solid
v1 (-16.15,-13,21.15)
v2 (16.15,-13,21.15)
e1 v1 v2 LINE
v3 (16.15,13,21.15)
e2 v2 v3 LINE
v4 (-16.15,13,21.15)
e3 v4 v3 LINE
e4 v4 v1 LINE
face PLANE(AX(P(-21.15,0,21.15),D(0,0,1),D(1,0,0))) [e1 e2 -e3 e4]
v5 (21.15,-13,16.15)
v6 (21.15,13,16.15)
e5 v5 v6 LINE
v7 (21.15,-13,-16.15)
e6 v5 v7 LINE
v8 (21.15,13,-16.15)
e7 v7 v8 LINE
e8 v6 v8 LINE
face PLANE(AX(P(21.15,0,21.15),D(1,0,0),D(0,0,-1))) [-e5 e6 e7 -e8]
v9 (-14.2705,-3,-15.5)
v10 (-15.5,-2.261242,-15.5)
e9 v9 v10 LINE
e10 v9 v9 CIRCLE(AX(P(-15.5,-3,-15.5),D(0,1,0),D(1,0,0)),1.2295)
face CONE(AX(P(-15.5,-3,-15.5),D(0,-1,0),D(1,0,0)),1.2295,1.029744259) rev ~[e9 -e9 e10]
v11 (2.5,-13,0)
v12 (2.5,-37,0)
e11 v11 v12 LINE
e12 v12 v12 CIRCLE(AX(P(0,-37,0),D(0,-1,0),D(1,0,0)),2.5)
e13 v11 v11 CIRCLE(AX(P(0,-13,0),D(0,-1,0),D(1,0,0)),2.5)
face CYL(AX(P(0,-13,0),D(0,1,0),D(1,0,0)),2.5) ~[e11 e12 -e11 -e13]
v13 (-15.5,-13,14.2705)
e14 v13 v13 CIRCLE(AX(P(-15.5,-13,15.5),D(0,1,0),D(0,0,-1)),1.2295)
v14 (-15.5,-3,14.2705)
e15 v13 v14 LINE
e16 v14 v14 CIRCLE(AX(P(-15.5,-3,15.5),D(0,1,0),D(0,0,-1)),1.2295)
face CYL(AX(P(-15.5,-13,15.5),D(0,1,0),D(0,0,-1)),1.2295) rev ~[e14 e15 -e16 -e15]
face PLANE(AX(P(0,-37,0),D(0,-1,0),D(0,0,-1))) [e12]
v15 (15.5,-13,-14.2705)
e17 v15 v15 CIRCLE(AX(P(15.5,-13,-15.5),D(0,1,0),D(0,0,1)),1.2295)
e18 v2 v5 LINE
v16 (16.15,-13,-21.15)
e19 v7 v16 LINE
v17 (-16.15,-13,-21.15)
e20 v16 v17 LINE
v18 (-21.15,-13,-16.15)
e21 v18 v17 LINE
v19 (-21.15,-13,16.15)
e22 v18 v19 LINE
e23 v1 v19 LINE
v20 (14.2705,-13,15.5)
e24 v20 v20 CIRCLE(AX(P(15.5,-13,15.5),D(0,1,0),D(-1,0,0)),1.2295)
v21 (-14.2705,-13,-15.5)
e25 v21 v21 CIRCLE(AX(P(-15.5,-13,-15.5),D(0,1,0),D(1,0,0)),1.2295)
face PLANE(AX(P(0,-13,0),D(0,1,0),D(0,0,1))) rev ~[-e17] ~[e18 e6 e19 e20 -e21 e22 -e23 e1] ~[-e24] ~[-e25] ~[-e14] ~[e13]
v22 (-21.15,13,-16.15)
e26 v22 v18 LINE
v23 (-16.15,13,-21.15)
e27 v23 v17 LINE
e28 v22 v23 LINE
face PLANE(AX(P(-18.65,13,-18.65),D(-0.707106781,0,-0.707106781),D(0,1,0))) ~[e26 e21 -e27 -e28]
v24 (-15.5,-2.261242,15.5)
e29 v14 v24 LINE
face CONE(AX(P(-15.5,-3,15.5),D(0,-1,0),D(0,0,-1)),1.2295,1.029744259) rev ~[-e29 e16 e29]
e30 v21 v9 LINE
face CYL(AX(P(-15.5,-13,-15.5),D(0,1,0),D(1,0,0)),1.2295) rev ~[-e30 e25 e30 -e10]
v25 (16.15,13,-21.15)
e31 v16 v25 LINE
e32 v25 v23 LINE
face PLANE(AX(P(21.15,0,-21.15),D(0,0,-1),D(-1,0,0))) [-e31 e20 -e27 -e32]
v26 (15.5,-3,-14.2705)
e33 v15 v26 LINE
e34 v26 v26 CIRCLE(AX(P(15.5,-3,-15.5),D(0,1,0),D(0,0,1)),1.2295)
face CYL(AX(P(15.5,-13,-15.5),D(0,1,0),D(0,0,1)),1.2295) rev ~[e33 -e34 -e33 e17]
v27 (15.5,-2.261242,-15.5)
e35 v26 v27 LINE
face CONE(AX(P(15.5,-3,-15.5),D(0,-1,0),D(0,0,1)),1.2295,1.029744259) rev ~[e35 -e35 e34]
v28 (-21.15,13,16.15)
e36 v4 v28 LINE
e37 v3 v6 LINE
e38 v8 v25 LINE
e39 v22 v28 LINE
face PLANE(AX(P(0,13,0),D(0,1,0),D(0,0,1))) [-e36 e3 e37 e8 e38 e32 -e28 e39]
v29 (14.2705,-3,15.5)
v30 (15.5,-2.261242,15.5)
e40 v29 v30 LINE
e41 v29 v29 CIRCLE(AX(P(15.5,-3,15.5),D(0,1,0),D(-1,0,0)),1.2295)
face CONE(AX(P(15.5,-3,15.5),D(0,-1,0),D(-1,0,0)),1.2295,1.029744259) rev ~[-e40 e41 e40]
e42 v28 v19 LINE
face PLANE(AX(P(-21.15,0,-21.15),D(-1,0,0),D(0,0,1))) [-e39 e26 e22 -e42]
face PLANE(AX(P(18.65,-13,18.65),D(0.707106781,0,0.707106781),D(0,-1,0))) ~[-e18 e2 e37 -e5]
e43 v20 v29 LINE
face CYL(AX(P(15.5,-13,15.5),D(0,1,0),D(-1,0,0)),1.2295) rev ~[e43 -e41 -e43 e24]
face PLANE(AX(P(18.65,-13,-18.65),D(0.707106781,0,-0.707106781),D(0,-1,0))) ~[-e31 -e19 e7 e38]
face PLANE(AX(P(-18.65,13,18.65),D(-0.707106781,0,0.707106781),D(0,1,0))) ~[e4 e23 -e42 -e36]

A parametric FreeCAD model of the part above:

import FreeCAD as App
import Part
import Sketcher


def edges_at(feature, points):
    """Names of the edges that pass closest to the given points."""
    edges = feature.Shape.Edges
    near = lambda p: min(range(len(edges)), key=lambda i: edges[i].distToShape(Part.Vertex(*p))[0])
    return sorted({f"Edge{near(p) + 1}" for p in points})

doc = App.newDocument("Part")
body = doc.addObject("PartDesign::Body", "Body")

# Sketch on XZ plane
sketch1 = body.newObject("Sketcher::SketchObject", "Sketch")
sketch1.AttachmentSupport = (doc.getObject("XZ_Plane"), [""])
sketch1.MapMode = "FlatFace"
sketch1.addGeometry([
    Part.LineSegment(App.Vector(21, 21, 0), App.Vector(-21, 21, 0)),
    Part.LineSegment(App.Vector(-21, 21, 0), App.Vector(-21, -21, 0)),
    Part.LineSegment(App.Vector(-21, -21, 0), App.Vector(21, -21, 0)),
    Part.LineSegment(App.Vector(21, -21, 0), App.Vector(21, 21, 0)),
], False)
sketch1.addConstraint([
    Sketcher.Constraint("Coincident", 0, 2, 1, 1),
    Sketcher.Constraint("Coincident", 1, 2, 2, 1),
    Sketcher.Constraint("Coincident", 2, 2, 3, 1),
    Sketcher.Constraint("Coincident", 3, 2, 0, 1),
    Sketcher.Constraint("Horizontal", 0),
    Sketcher.Constraint("Vertical", 1),
    Sketcher.Constraint("Horizontal", 2),
    Sketcher.Constraint("Vertical", 3),
    Sketcher.Constraint("Symmetric", 0, 2, 2, 2, -1, 1),
    Sketcher.Constraint("Equal", 2, 1),
    Sketcher.Constraint("DistanceX", 0, 2, -1, 1, 21.15),
])
pad1 = body.newObject("PartDesign::Pad", "Pad")
pad1.Profile = sketch1
pad1.Length = 26
pad1.Midplane = True

# Sketch on XZ plane
sketch2 = body.newObject("Sketcher::SketchObject", "Sketch001")
sketch2.AttachmentSupport = (doc.getObject("XZ_Plane"), [""])
sketch2.MapMode = "FlatFace"
sketch2.AttachmentOffset = App.Placement(App.Vector(0, 0, 13), App.Rotation())
sketch2.addGeometry(Part.Circle(App.Vector(0, 0, 0), App.Vector(0, 0, 1), 2.5), False)
sketch2.addConstraint([
    Sketcher.Constraint("Coincident", 0, 3, -1, 1),
    Sketcher.Constraint("Diameter", 0, 5.0),
])
pad2 = body.newObject("PartDesign::Pad", "Pad001")
pad2.Profile = sketch2
pad2.Length = 24

# Sketch on XZ plane
sketch3 = body.newObject("Sketcher::SketchObject", "Sketch002")
sketch3.AttachmentSupport = (doc.getObject("XZ_Plane"), [""])
sketch3.MapMode = "FlatFace"
sketch3.AttachmentOffset = App.Placement(App.Vector(0, 0, 13), App.Rotation())
sketch3.addGeometry(Part.Circle(App.Vector(-15.5, 15.5, 0), App.Vector(0, 0, 1), 1.2), False)
sketch3.addConstraint([
    Sketcher.Constraint("Diameter", 0, 2.459),
    Sketcher.Constraint("DistanceX", 0, 3, -1, 1, 15.5),
    Sketcher.Constraint("DistanceY", -1, 1, 0, 3, 15.5),
])
doc.recompute()
hole = body.newObject("PartDesign::Hole", "Hole")
hole.Profile = sketch3
hole.ThreadType = "None"
hole.Diameter = 2.459
hole.DepthType = "Dimension"
hole.Depth = 10
hole.DrillPoint = "Angled"
hole.DrillPointAngle = 118
doc.recompute()

polarpattern = body.newObject("PartDesign::PolarPattern", "PolarPattern")
polarpattern.Originals = [hole]
polarpattern.Axis = (doc.getObject("Y_Axis"), [""])
polarpattern.Angle = 360
polarpattern.Occurrences = 4
body.Tip = polarpattern
doc.recompute()

chamfer = body.newObject("PartDesign::Chamfer", "Chamfer")
chamfer.Base = (polarpattern, edges_at(polarpattern, [
    (21.15, 0, 21.15),
    (-21.15, 0, 21.15),
    (21.15, 0, -21.15),
    (-21.15, 0, -21.15),
]))
chamfer.Size = 5

doc.recompute()
